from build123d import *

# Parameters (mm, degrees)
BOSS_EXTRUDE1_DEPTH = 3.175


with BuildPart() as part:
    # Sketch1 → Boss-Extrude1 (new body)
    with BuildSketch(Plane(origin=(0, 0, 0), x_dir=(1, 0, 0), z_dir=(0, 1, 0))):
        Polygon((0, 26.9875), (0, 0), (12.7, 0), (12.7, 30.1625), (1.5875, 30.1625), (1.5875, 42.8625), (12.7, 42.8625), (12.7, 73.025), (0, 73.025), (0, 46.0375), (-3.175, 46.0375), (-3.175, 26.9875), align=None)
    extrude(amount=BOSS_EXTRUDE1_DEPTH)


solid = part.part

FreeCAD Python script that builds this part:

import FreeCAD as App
import Part
import Sketcher
Q = App.Units.Quantity

doc = App.newDocument("Part")
body = doc.addObject("PartDesign::Body", "Body")

# Sketch on XZ plane
sketch1 = body.newObject("Sketcher::SketchObject", "Sketch")
sketch1.AttachmentSupport = (doc.getObject("XZ_Plane"), [""])
sketch1.MapMode = "FlatFace"
sketch1.addGeometry([
    Part.LineSegment(App.Vector(0, -27, 0), App.Vector(0, 0, 0)),  # 0
    Part.LineSegment(App.Vector(0, 0, 0), App.Vector(12.7, 0, 0)),  # 1
    Part.LineSegment(App.Vector(12.7, 0, 0), App.Vector(12.7, -30.2, 0)),  # 2
    Part.LineSegment(App.Vector(12.7, -30.2, 0), App.Vector(1.6, -30.2, 0)),  # 3
    Part.LineSegment(App.Vector(1.6, -30.2, 0), App.Vector(1.6, -42.9, 0)),  # 4
    Part.LineSegment(App.Vector(1.6, -42.9, 0), App.Vector(12.7, -42.9, 0)),  # 5
    Part.LineSegment(App.Vector(12.7, -42.9, 0), App.Vector(12.7, -73, 0)),  # 6
    Part.LineSegment(App.Vector(12.7, -73, 0), App.Vector(0, -73, 0)),  # 7
    Part.LineSegment(App.Vector(0, -73, 0), App.Vector(0, -46, 0)),  # 8
    Part.LineSegment(App.Vector(0, -46, 0), App.Vector(-3.2, -46, 0)),  # 9
    Part.LineSegment(App.Vector(-3.2, -46, 0), App.Vector(-3.2, -27, 0)),  # 10
    Part.LineSegment(App.Vector(-3.2, -27, 0), App.Vector(0, -27, 0)),  # 11
], False)
sketch1.addConstraint([
    Sketcher.Constraint("Coincident", 0, 2, 1, 1),
    Sketcher.Constraint("Coincident", 1, 2, 2, 1),
    Sketcher.Constraint("Coincident", 2, 2, 3, 1),
    Sketcher.Constraint("Coincident", 3, 2, 4, 1),
    Sketcher.Constraint("Coincident", 4, 2, 5, 1),
    Sketcher.Constraint("Coincident", 5, 2, 6, 1),
    Sketcher.Constraint("Coincident", 6, 2, 7, 1),
    Sketcher.Constraint("Coincident", 7, 2, 8, 1),
    Sketcher.Constraint("Coincident", 8, 2, 9, 1),
    Sketcher.Constraint("Coincident", 9, 2, 10, 1),
    Sketcher.Constraint("Coincident", 10, 2, 11, 1),
    Sketcher.Constraint("Coincident", 11, 2, 0, 1),
    Sketcher.Constraint("Vertical", 0),
    Sketcher.Constraint("Horizontal", 1),
    Sketcher.Constraint("Vertical", 2),
    Sketcher.Constraint("Horizontal", 3),
    Sketcher.Constraint("Vertical", 4),
    Sketcher.Constraint("Horizontal", 5),
    Sketcher.Constraint("Vertical", 6),
    Sketcher.Constraint("Horizontal", 7),
    Sketcher.Constraint("Vertical", 8),
    Sketcher.Constraint("Horizontal", 9),
    Sketcher.Constraint("Vertical", 10),
    Sketcher.Constraint("Horizontal", 11),
    Sketcher.Constraint("Coincident", 0, 2, -1, 1),
    Sketcher.Constraint("PointOnObject", 7, 2, -2),
    Sketcher.Constraint("Vertical", 2, 2, 5, 2),
    Sketcher.Constraint("Equal", 7, 4),
    Sketcher.Constraint("Equal", 2, 6),
    Sketcher.Constraint("Equal", 0, 8),
    Sketcher.Constraint("DistanceX", 1, 1, 1, 2, Q("0.5 in")),
    Sketcher.Constraint("DistanceY", 10, 1, 10, 2, Q("0.75 in")),
    Sketcher.Constraint("DistanceX", 3, 2, 3, 1, Q("0.4375 in")),
    Sketcher.Constraint("DistanceX", 9, 2, 9, 1, Q("0.125 in")),
    Sketcher.Constraint("DistanceY", 0, 1, 0, 2, Q("1.0625 in")),
])
pad1 = body.newObject("PartDesign::Pad", "Pad")
pad1.Profile = sketch1
pad1.Length = Q("0.125 in")
pad1.Reversed = True

doc.recompute()
